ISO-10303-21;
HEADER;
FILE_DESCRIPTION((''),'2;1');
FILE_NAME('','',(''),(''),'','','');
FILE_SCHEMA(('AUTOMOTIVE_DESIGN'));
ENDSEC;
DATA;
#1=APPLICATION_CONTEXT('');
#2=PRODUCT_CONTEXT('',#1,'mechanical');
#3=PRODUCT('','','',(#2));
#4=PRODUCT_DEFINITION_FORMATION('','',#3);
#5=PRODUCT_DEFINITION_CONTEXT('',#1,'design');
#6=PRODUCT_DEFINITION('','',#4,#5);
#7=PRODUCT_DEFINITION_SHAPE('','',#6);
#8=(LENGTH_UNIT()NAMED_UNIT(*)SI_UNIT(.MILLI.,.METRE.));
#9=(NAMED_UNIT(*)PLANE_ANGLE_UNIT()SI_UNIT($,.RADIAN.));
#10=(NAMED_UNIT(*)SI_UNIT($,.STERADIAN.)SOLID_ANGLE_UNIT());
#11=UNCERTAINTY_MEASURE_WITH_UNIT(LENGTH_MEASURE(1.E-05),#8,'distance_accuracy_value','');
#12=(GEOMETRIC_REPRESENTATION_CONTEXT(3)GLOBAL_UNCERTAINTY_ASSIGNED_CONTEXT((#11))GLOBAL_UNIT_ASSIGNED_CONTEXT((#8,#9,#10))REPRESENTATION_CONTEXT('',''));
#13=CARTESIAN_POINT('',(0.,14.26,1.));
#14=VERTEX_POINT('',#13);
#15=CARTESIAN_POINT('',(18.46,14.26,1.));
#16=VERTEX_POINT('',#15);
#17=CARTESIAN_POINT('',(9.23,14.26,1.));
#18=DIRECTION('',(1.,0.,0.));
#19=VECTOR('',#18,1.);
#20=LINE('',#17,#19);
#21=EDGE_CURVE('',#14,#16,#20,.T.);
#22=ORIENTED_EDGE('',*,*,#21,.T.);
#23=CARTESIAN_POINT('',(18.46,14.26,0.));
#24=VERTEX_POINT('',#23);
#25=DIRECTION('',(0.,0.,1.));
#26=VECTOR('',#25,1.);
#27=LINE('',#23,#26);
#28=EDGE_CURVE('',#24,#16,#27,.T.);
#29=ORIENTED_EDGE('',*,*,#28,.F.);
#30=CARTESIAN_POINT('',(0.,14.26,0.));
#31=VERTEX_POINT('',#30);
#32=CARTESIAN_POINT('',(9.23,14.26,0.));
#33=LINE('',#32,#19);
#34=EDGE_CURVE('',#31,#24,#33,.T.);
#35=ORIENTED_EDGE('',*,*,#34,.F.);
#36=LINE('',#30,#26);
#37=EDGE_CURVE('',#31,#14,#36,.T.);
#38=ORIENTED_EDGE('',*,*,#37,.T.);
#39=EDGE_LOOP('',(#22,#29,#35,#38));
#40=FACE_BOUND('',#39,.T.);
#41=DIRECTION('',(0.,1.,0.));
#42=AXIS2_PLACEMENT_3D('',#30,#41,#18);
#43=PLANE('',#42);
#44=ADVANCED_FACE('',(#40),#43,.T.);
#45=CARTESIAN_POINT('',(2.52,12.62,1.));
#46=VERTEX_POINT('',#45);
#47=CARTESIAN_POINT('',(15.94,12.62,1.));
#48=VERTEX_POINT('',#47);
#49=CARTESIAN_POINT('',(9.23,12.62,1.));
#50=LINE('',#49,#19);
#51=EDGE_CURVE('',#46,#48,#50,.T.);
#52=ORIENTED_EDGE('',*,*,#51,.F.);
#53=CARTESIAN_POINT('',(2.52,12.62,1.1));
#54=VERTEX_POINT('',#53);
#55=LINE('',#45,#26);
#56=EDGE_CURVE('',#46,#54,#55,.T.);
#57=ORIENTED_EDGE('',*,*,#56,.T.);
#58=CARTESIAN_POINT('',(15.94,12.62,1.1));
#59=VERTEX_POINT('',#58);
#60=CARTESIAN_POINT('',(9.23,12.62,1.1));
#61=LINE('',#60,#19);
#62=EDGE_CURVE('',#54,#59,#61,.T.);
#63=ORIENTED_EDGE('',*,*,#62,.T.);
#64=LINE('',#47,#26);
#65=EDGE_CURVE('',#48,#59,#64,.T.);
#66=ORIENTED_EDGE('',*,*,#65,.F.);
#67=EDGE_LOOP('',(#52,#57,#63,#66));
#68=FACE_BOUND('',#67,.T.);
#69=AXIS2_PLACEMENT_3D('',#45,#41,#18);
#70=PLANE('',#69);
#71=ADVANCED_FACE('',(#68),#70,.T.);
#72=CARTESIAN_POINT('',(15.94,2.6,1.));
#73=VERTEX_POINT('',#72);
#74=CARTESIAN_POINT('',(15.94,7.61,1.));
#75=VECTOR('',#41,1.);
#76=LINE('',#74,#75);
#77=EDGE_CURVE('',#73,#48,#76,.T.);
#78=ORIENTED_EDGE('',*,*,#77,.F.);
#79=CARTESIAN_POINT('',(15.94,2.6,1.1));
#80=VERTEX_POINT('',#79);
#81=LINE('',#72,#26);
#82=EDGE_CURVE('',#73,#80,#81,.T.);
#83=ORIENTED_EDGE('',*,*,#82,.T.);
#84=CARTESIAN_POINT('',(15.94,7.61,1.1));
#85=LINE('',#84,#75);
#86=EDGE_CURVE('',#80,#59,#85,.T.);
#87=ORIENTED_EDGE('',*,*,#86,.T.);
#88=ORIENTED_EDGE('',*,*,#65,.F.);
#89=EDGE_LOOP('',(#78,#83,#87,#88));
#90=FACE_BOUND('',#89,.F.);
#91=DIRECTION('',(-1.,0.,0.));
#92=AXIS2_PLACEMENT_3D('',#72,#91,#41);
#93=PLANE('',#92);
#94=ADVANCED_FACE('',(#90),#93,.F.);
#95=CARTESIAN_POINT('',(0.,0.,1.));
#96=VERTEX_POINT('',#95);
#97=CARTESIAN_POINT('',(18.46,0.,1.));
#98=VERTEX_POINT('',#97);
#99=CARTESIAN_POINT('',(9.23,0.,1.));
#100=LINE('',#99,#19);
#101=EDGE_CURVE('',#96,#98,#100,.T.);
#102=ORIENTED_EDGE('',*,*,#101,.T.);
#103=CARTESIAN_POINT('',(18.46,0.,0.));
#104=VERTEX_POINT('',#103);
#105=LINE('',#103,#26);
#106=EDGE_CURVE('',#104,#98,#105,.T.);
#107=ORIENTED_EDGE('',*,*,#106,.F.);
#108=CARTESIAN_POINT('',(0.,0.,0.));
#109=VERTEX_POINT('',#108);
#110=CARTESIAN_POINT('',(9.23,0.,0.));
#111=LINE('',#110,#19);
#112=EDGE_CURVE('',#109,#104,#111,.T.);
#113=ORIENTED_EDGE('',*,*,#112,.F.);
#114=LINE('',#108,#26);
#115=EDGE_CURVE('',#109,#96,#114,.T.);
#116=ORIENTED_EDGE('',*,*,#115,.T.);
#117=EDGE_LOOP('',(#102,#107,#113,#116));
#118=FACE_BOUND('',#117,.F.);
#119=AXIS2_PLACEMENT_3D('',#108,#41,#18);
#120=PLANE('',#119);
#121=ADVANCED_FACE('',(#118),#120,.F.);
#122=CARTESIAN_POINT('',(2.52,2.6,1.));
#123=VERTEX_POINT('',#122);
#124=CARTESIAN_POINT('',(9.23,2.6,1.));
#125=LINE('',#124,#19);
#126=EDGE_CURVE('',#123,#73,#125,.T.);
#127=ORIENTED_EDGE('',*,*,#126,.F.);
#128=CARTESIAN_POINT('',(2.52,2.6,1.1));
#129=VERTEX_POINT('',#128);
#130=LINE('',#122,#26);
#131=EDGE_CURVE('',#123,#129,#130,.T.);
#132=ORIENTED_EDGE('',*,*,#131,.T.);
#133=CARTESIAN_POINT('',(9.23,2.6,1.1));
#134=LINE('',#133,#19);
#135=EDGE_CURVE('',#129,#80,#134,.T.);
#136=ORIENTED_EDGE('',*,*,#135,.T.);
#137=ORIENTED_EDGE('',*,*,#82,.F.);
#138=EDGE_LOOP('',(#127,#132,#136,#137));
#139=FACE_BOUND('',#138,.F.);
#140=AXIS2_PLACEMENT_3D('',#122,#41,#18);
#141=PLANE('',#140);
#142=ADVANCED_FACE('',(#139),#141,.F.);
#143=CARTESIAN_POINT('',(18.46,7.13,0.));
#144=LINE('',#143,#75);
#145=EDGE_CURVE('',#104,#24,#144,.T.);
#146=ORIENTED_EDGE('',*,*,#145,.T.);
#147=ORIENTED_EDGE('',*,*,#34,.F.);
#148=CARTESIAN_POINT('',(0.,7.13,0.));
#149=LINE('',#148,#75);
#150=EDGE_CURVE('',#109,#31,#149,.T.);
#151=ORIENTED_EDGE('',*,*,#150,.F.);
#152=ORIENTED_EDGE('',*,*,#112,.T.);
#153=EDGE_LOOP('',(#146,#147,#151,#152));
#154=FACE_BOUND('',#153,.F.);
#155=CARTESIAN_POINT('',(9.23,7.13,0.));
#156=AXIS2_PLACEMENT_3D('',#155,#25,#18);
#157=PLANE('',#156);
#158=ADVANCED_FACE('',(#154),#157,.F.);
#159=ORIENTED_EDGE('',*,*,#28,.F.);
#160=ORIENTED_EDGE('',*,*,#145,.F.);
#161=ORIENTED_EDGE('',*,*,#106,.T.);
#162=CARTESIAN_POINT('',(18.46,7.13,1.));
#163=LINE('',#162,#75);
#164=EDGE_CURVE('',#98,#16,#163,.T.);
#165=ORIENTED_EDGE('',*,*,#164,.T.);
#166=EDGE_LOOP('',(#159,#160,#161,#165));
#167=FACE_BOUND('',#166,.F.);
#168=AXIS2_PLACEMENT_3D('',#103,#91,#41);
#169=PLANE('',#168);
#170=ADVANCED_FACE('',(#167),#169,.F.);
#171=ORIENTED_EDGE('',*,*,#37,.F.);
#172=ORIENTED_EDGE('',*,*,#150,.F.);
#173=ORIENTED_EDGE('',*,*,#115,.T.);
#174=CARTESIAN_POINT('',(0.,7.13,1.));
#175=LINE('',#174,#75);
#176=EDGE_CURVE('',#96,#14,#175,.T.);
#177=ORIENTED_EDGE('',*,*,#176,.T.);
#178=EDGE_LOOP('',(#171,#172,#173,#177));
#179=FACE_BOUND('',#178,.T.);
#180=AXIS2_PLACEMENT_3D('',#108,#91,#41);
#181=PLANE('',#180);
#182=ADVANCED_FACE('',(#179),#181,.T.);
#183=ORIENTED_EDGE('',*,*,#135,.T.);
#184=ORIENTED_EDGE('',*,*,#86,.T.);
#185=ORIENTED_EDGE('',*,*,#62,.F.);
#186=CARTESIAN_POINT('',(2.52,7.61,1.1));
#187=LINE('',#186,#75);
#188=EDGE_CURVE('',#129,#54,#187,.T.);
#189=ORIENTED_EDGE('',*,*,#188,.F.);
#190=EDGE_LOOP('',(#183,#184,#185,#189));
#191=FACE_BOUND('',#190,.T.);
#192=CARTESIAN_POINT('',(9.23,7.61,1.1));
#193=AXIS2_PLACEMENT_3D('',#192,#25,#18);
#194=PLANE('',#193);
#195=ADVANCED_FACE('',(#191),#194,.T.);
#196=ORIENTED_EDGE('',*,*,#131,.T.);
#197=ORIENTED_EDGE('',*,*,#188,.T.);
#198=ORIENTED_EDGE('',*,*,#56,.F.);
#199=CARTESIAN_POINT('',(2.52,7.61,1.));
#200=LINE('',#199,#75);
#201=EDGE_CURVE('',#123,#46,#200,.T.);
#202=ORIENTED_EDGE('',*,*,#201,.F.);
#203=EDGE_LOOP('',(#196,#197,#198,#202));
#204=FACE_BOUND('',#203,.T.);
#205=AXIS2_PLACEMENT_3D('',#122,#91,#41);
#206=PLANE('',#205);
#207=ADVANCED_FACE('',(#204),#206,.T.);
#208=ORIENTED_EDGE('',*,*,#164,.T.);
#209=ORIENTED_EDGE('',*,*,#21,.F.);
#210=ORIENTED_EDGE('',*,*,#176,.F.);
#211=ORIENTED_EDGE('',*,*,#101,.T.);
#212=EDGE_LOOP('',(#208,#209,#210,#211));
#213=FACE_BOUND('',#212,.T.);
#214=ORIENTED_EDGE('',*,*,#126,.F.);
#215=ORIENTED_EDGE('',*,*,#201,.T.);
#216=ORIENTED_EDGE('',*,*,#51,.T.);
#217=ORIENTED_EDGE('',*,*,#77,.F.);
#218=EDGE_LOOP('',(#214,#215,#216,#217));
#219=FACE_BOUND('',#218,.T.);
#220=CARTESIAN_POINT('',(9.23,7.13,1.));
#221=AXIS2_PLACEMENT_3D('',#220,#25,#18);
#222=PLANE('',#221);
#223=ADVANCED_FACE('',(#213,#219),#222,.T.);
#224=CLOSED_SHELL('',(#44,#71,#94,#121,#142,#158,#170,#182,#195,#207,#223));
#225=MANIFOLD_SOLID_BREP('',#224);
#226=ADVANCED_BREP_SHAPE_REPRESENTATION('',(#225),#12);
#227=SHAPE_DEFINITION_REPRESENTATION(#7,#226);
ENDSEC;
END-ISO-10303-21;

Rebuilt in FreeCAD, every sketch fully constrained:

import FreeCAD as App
import Part
import Sketcher
Q = App.Units.Quantity


def add_polygon(sketch, points):
    """Adds a closed chain of lines whose ends are joined by coincident constraints."""
    first, n = sketch.GeometryCount, len(points)
    for a, b in zip(points, points[1:] + points[:1]):
        sketch.addGeometry(Part.LineSegment(App.Vector(*a, 0), App.Vector(*b, 0)), False)
    for i in range(n):
        sketch.addConstraint(Sketcher.Constraint("Coincident", first + i, 2, first + (i + 1) % n, 1))

doc = App.newDocument("Part")
body = doc.addObject("PartDesign::Body", "Body")

sketch1 = body.newObject("Sketcher::SketchObject", "Sketch")
sketch1.AttachmentSupport = (doc.getObject("XY_Plane"), [""])
sketch1.MapMode = "FlatFace"
add_polygon(sketch1, [(0, 14), (0, 0), (18, 0), (18, 14)])
sketch1.addConstraint(Sketcher.Constraint("Vertical", 0))
sketch1.addConstraint(Sketcher.Constraint("Horizontal", 1))
sketch1.addConstraint(Sketcher.Constraint("Vertical", 2))
sketch1.addConstraint(Sketcher.Constraint("Horizontal", 3))
sketch1.addConstraint(Sketcher.Constraint("Coincident", 0, 2, -1, 1))
sketch1.addConstraint(Sketcher.Constraint("DistanceX", 1, 1, 1, 2, Q("18.46 mm")))
sketch1.addConstraint(Sketcher.Constraint("DistanceY", 0, 2, 0, 1, Q("14.26 mm")))
pad1 = body.newObject("PartDesign::Pad", "Pad")
pad1.Profile = sketch1
pad1.Length = 1
body2 = doc.addObject("PartDesign::Body", "Body001")

sketch2 = body2.newObject("Sketcher::SketchObject", "Sketch001")
sketch2.AttachmentSupport = (doc.getObject("XY_Plane001"), [""])
sketch2.MapMode = "FlatFace"
sketch2.AttachmentOffset = App.Placement(App.Vector(0, 0, 1), App.Rotation())
add_polygon(sketch2, [(3, 13), (3, 3), (16, 3), (16, 13)])
sketch2.addConstraint(Sketcher.Constraint("Vertical", 0))
sketch2.addConstraint(Sketcher.Constraint("Horizontal", 1))
sketch2.addConstraint(Sketcher.Constraint("Vertical", 2))
sketch2.addConstraint(Sketcher.Constraint("Horizontal", 3))
sketch2.addConstraint(Sketcher.Constraint("DistanceX", 1, 1, 1, 2, Q("13.42 mm")))
sketch2.addConstraint(Sketcher.Constraint("DistanceY", 0, 2, 0, 1, Q("10.02 mm")))
sketch2.addConstraint(Sketcher.Constraint("DistanceY", -1, 1, 0, 2, Q("2.6 mm")))
sketch2.addConstraint(Sketcher.Constraint("DistanceX", -1, 1, 0, 2, Q("2.52 mm")))
pad2 = body2.newObject("PartDesign::Pad", "Pad001")
pad2.Profile = sketch2
pad2.Length = 0.1
doc.recompute()

boolean = body2.newObject("PartDesign::Boolean", "Boolean")
boolean.Type = "Fuse"
boolean.addObjects([body])

doc.recompute()
